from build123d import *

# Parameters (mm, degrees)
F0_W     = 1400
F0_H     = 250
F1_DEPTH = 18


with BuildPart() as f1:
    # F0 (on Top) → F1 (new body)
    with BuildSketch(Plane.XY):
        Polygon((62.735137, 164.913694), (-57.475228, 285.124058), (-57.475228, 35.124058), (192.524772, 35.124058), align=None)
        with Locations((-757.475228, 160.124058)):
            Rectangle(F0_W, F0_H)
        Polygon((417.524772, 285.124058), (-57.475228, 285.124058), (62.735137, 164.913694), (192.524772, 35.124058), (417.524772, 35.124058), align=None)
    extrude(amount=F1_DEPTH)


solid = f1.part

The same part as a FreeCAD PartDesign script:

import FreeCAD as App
import Part
import Sketcher

doc = App.newDocument("Part")
body = doc.addObject("PartDesign::Body", "Body")

# Sketch on XY plane
sketch1 = body.newObject("Sketcher::SketchObject", "Sketch")
sketch1.AttachmentSupport = (doc.getObject("XY_Plane"), [""])
sketch1.MapMode = "FlatFace"
sketch1.addGeometry(Part.LineSegment(App.Vector(-1457, 285, 0), App.Vector(-1457, 35, 0)), False)
sketch1.addGeometry(Part.LineSegment(App.Vector(-1457, 35, 0), App.Vector(418, 35, 0)), False)
sketch1.addGeometry(Part.LineSegment(App.Vector(418, 35, 0), App.Vector(418, 285, 0)), False)
sketch1.addGeometry(Part.LineSegment(App.Vector(418, 285, 0), App.Vector(-1457, 285, 0)), False)
sketch1.addConstraint(Sketcher.Constraint("Coincident", 0, 2, 1, 1))
sketch1.addConstraint(Sketcher.Constraint("Coincident", 1, 2, 2, 1))
sketch1.addConstraint(Sketcher.Constraint("Coincident", 2, 2, 3, 1))
sketch1.addConstraint(Sketcher.Constraint("Coincident", 3, 2, 0, 1))
sketch1.addConstraint(Sketcher.Constraint("Vertical", 0))
sketch1.addConstraint(Sketcher.Constraint("Horizontal", 1))
sketch1.addConstraint(Sketcher.Constraint("Vertical", 2))
sketch1.addConstraint(Sketcher.Constraint("Horizontal", 3))
sketch1.addConstraint(Sketcher.Constraint("DistanceX", 1, 1, 1, 2, 1875.0))
sketch1.addConstraint(Sketcher.Constraint("DistanceY", 0, 2, 0, 1, 250.0))
sketch1.addConstraint(Sketcher.Constraint("DistanceX", 0, 2, -1, 1, 1457.475228))
sketch1.addConstraint(Sketcher.Constraint("DistanceY", -1, 1, 2, 2, 285.124058))
pad1 = body.newObject("PartDesign::Pad", "Pad")
pad1.Profile = sketch1
pad1.Length = 18

doc.recompute()
